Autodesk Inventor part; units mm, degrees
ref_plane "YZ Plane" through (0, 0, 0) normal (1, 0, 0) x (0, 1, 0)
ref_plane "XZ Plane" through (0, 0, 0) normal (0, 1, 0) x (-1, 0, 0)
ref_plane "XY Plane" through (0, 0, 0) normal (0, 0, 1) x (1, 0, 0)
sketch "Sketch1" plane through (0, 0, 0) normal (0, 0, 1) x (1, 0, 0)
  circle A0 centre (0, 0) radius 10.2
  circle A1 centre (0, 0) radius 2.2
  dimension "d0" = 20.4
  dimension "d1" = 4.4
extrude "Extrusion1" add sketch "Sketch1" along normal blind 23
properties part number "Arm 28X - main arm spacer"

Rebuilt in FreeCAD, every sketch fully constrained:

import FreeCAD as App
import Part
import Sketcher
from FreeCAD import Vector
Q = App.Units.Quantity

doc = App.newDocument("Part")
body = doc.addObject("PartDesign::Body", "Body")

# Sketch on XY plane
sketch1 = body.newObject("Sketcher::SketchObject", "Sketch")
sketch1.AttachmentSupport = (doc.getObject("XY_Plane"), [""])
sketch1.MapMode = "FlatFace"
sketch1.addGeometry(Part.Circle(Vector(0, 0, 0), Vector(0, 0, 1), 10.2), False)
sketch1.addGeometry(Part.Circle(Vector(0, 0, 0), Vector(0, 0, 1), 2.2), False)
sketch1.addConstraint(Sketcher.Constraint("Coincident", 0, 3, -1, 1))
sketch1.addConstraint(Sketcher.Constraint("Coincident", 1, 3, -1, 1))
sketch1.addConstraint(Sketcher.Constraint("Diameter", 0, Q("20.4 mm")))
sketch1.addConstraint(Sketcher.Constraint("Diameter", 1, Q("4.4 mm")))
pad1 = body.newObject("PartDesign::Pad", "Pad")
pad1.Profile = sketch1
pad1.Length = 23

doc.recompute()
